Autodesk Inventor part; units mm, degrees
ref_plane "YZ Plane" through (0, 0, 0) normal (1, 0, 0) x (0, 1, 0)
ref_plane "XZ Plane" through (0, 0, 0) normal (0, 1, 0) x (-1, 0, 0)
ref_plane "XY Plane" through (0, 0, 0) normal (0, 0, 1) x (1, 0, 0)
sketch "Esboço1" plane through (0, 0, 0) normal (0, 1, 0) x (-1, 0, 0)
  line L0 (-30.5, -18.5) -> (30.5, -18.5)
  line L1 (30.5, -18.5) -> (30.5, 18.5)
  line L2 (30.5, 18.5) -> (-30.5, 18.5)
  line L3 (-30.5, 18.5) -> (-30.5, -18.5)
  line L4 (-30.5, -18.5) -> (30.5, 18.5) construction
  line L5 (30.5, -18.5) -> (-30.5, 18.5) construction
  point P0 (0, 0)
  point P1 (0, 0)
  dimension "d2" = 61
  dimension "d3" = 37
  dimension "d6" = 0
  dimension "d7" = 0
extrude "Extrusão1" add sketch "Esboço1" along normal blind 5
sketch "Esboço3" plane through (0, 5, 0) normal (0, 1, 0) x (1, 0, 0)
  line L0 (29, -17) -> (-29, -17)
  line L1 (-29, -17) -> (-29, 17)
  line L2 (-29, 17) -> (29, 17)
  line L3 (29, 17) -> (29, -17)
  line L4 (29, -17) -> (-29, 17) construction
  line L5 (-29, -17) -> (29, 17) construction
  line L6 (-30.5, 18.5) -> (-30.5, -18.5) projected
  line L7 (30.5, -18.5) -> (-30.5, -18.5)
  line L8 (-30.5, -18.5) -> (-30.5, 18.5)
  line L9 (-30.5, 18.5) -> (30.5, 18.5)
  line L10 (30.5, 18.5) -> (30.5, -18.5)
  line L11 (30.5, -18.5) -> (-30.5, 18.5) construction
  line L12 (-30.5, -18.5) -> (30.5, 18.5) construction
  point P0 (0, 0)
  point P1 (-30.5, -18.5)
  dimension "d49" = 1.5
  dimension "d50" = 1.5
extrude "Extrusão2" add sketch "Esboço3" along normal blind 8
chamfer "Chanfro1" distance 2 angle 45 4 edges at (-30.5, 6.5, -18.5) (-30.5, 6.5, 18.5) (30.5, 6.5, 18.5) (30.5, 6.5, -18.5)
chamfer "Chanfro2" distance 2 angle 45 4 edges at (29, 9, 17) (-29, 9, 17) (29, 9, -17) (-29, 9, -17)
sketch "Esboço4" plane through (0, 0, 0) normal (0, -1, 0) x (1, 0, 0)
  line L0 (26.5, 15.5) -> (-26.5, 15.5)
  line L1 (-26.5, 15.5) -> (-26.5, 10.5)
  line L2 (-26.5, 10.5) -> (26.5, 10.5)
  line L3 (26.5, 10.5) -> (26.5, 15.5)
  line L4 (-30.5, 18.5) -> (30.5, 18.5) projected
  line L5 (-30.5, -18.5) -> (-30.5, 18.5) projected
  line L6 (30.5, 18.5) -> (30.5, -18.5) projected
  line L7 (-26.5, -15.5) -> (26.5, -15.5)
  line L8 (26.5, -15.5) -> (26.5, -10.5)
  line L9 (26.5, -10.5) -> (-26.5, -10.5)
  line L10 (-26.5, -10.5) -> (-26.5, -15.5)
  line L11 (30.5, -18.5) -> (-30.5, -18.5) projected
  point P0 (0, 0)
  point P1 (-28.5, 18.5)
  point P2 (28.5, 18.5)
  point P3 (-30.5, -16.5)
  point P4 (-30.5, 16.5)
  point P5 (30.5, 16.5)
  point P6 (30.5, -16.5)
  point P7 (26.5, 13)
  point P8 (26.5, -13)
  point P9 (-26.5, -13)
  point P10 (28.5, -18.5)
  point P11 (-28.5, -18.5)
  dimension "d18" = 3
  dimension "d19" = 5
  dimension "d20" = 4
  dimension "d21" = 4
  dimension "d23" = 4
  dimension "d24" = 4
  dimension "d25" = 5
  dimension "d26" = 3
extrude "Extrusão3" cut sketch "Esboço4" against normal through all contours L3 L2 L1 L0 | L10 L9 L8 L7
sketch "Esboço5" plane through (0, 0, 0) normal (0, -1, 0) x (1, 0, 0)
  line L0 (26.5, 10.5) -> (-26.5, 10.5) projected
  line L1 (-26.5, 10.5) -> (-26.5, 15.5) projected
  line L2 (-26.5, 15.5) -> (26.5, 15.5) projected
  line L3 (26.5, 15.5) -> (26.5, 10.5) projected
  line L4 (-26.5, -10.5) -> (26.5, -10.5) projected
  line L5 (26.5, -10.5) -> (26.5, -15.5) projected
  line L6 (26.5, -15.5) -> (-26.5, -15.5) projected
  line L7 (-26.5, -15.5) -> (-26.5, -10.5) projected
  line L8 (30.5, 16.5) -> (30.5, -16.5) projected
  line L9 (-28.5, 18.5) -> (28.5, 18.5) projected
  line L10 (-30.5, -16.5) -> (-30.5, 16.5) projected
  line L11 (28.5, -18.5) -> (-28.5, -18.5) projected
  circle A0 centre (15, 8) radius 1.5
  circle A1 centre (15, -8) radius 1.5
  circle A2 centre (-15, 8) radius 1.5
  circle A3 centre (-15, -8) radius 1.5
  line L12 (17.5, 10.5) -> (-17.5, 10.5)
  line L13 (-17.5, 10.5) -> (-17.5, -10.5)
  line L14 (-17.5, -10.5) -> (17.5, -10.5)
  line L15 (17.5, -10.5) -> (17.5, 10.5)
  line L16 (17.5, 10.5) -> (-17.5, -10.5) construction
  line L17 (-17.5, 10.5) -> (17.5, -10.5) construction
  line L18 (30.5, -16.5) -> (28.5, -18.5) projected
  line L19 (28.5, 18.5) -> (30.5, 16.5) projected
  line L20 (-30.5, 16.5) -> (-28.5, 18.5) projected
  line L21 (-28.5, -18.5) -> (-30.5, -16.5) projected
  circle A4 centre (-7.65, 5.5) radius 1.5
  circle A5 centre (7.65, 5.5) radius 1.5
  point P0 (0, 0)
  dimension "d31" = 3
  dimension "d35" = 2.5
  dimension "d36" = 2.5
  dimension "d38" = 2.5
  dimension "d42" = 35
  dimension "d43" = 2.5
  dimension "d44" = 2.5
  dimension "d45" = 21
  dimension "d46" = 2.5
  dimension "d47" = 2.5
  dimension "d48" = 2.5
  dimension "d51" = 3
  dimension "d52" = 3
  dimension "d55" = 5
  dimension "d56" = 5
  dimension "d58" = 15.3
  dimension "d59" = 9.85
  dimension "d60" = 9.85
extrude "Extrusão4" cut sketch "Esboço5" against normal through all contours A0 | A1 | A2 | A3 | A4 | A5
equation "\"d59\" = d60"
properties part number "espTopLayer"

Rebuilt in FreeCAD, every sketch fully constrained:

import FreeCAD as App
import Part
import Sketcher

V = App.Vector


def edges_at(feature, points):
    """Names of the edges that pass closest to the given points."""
    edges = feature.Shape.Edges
    near = lambda p: min(range(len(edges)), key=lambda i: edges[i].distToShape(Part.Vertex(*p))[0])
    return sorted({f"Edge{near(p) + 1}" for p in points})


def add_polygon(sketch, points):
    """Adds a closed chain of lines whose ends are joined by coincident constraints."""
    first, n = sketch.GeometryCount, len(points)
    for a, b in zip(points, points[1:] + points[:1]):
        sketch.addGeometry(Part.LineSegment(App.Vector(*a, 0), App.Vector(*b, 0)), False)
    for i in range(n):
        sketch.addConstraint(Sketcher.Constraint("Coincident", first + i, 2, first + (i + 1) % n, 1))

doc = App.newDocument("Part")
params = doc.addObject("Spreadsheet::Sheet", "Params")
for row, (alias, value) in enumerate([
    ("sketch1_width", "61 mm"),
    ("sketch1_height", "37 mm"),
    ("pad1_length", "5 mm"),
    ("sketch2_width", "61 mm"),
    ("sketch2_height", "37 mm"),
    ("pad2_length", "8 mm"),
    ("chamfer_size", "2 mm"),
    ("chamfer2_size", "2 mm"),
    ("sketch3_height", "5 mm"),
    ("sketch3_width", "53 mm"),
    ("sketch4_diameter", "3 mm"),
], start=1):
    params.set(f"A{row}", alias)
    params.set(f"B{row}", "=" + value)
    params.setAlias(f"B{row}", alias)

body = doc.addObject("PartDesign::Body", "Body")

sketch1 = doc.addObject("Sketcher::SketchObject", "Sketch")
body.addObject(sketch1)
sketch1.AttachmentSupport = (doc.XZ_Plane, [""])
sketch1.MapMode = "FlatFace"
add_polygon(sketch1, [(30, 18), (30, -18), (-30, -18), (-30, 18)])
sketch1.addConstraint(Sketcher.Constraint("Vertical", 0))
sketch1.addConstraint(Sketcher.Constraint("Horizontal", 1))
sketch1.addConstraint(Sketcher.Constraint("Vertical", 2))
sketch1.addConstraint(Sketcher.Constraint("Horizontal", 3))
sketch1.addConstraint(Sketcher.Constraint("Symmetric", 0, 2, 2, 2, -1, 1))
sketch1.addConstraint(Sketcher.Constraint("DistanceX", 1, 2, 1, 1, 61.0))
sketch1.addConstraint(Sketcher.Constraint("DistanceY", 0, 2, 0, 1, 37.0))
sketch1.setExpression("Constraints[9]", "Params.sketch1_width")
sketch1.setExpression("Constraints[10]", "Params.sketch1_height")
pad1 = doc.addObject("PartDesign::Pad", "Pad")
body.addObject(pad1)
pad1.Profile = sketch1
pad1.setExpression("Length", "Params.pad1_length")
pad1.Reversed = True

sketch2 = doc.addObject("Sketcher::SketchObject", "Sketch001")
body.addObject(sketch2)
sketch2.AttachmentSupport = (doc.XZ_Plane, [""])
sketch2.MapMode = "FlatFace"
sketch2.AttachmentOffset = App.Placement(V(0, 0, -5), App.Rotation())
add_polygon(sketch2, [(30, -18), (-30, -18), (-30, 18), (30, 18)])
add_polygon(sketch2, [(29, -17), (29, 17), (-29, 17), (-29, -17)])
sketch2.addConstraint(Sketcher.Constraint("Horizontal", 0))
sketch2.addConstraint(Sketcher.Constraint("Vertical", 1))
sketch2.addConstraint(Sketcher.Constraint("Horizontal", 2))
sketch2.addConstraint(Sketcher.Constraint("Vertical", 3))
sketch2.addConstraint(Sketcher.Constraint("Vertical", 4))
sketch2.addConstraint(Sketcher.Constraint("Horizontal", 5))
sketch2.addConstraint(Sketcher.Constraint("Vertical", 6))
sketch2.addConstraint(Sketcher.Constraint("Horizontal", 7))
sketch2.addConstraint(Sketcher.Constraint("Symmetric", 0, 2, 2, 2, -1, 1))
sketch2.addConstraint(Sketcher.Constraint("Symmetric", 4, 2, 6, 2, -1, 1))
sketch2.addConstraint(Sketcher.Constraint("DistanceX", 4, 2, 2, 2, 1.5))
sketch2.addConstraint(Sketcher.Constraint("DistanceY", 4, 2, 2, 2, 1.5))
sketch2.addConstraint(Sketcher.Constraint("DistanceX", 0, 2, 0, 1, 61.0))
sketch2.addConstraint(Sketcher.Constraint("DistanceY", 1, 1, 1, 2, 37.0))
sketch2.setExpression("Constraints[20]", "Params.sketch2_width")
sketch2.setExpression("Constraints[21]", "Params.sketch2_height")
pad2 = doc.addObject("PartDesign::Pad", "Pad001")
body.addObject(pad2)
pad2.Profile = sketch2
pad2.setExpression("Length", "Params.pad2_length")
pad2.Reversed = True
doc.recompute()

chamfer = doc.addObject("PartDesign::Chamfer", "Chamfer")
body.addObject(chamfer)
chamfer.Base = (pad2, edges_at(pad2, [
    (-30.5, 6.5, -18.5),
    (-30.5, 6.5, 18.5),
    (30.5, 6.5, 18.5),
    (30.5, 6.5, -18.5),
]))
chamfer.setExpression("Size", "Params.chamfer_size")
doc.recompute()

chamfer2 = doc.addObject("PartDesign::Chamfer", "Chamfer001")
body.addObject(chamfer2)
chamfer2.Base = (chamfer, edges_at(chamfer, [
    (29, 9, 17),
    (-29, 9, 17),
    (29, 9, -17),
    (-29, 9, -17),
]))
chamfer2.setExpression("Size", "Params.chamfer2_size")

sketch3 = doc.addObject("Sketcher::SketchObject", "Sketch002")
body.addObject(sketch3)
sketch3.AttachmentSupport = (doc.XZ_Plane, [""])
sketch3.MapMode = "FlatFace"
add_polygon(sketch3, [(26, 10), (26, 16), (-26, 16), (-26, 10)])
add_polygon(sketch3, [(-26, -10), (-26, -16), (26, -16), (26, -10)])
sketch3.addConstraint(Sketcher.Constraint("Vertical", 0))
sketch3.addConstraint(Sketcher.Constraint("Horizontal", 1))
sketch3.addConstraint(Sketcher.Constraint("Vertical", 2))
sketch3.addConstraint(Sketcher.Constraint("Horizontal", 3))
sketch3.addConstraint(Sketcher.Constraint("Vertical", 4))
sketch3.addConstraint(Sketcher.Constraint("Horizontal", 5))
sketch3.addConstraint(Sketcher.Constraint("Vertical", 6))
sketch3.addConstraint(Sketcher.Constraint("Horizontal", 7))
sketch3.addConstraint(Sketcher.Constraint("Symmetric", 0, 2, 4, 2, -1, 1))
sketch3.addConstraint(Sketcher.Constraint("Symmetric", 2, 2, 6, 2, -1, 1))
sketch3.addConstraint(Sketcher.Constraint("Vertical", 2, 2, 4, 2))
sketch3.addConstraint(Sketcher.Constraint("DistanceY", 0, 1, 0, 2, 5.0))
sketch3.addConstraint(Sketcher.Constraint("DistanceX", 1, 2, 1, 1, 53.0))
sketch3.addConstraint(Sketcher.Constraint("DistanceY", 4, 2, 2, 2, 26.0))
sketch3.setExpression("Constraints[19]", "Params.sketch3_height")
sketch3.setExpression("Constraints[20]", "Params.sketch3_width")
pocket1 = doc.addObject("PartDesign::Pocket", "Pocket")
body.addObject(pocket1)
pocket1.Profile = sketch3
pocket1.Type = "ThroughAll"

sketch4 = doc.addObject("Sketcher::SketchObject", "Sketch003")
body.addObject(sketch4)
sketch4.AttachmentSupport = (doc.XZ_Plane, [""])
sketch4.MapMode = "FlatFace"
sketch4.addGeometry(Part.Circle(V(15, 8, 0), V(0, 0, 1), 1.5), False)
sketch4.addGeometry(Part.Circle(V(15, -8, 0), V(0, 0, 1), 1.5), False)
sketch4.addGeometry(Part.Circle(V(-15, 8, 0), V(0, 0, 1), 1.5), False)
sketch4.addGeometry(Part.Circle(V(-15, -8, 0), V(0, 0, 1), 1.5), False)
sketch4.addGeometry(Part.Circle(V(-7.7, 5.5, 0), V(0, 0, 1), 1.5), False)
sketch4.addGeometry(Part.Circle(V(7.7, 5.5, 0), V(0, 0, 1), 1.5), False)
sketch4.addConstraint(Sketcher.Constraint("Equal", 0, 1))
sketch4.addConstraint(Sketcher.Constraint("Equal", 1, 2))
sketch4.addConstraint(Sketcher.Constraint("Equal", 2, 3))
sketch4.addConstraint(Sketcher.Constraint("Equal", 3, 4))
sketch4.addConstraint(Sketcher.Constraint("Equal", 4, 5))
sketch4.addConstraint(Sketcher.Constraint("Symmetric", 1, 3, 2, 3, -1, 1))
sketch4.addConstraint(Sketcher.Constraint("Symmetric", 0, 3, 3, 3, -1, 1))
sketch4.addConstraint(Sketcher.Constraint("Symmetric", 0, 3, 2, 3, -2))
sketch4.addConstraint(Sketcher.Constraint("Symmetric", 4, 3, 5, 3, -2))
sketch4.addConstraint(Sketcher.Constraint("Diameter", 0, 3.0))
sketch4.addConstraint(Sketcher.Constraint("DistanceY", 4, 3, 2, 3, 2.5))
sketch4.addConstraint(Sketcher.Constraint("DistanceX", 4, 3, 5, 3, 15.3))
sketch4.addConstraint(Sketcher.Constraint("DistanceX", -1, 1, 0, 3, 15.0))
sketch4.addConstraint(Sketcher.Constraint("DistanceY", -1, 1, 0, 3, 8.0))
sketch4.setExpression("Constraints[9]", "Params.sketch4_diameter")
pocket2 = doc.addObject("PartDesign::Pocket", "Pocket001")
body.addObject(pocket2)
pocket2.Profile = sketch4
pocket2.Type = "ThroughAll"

doc.recompute()
